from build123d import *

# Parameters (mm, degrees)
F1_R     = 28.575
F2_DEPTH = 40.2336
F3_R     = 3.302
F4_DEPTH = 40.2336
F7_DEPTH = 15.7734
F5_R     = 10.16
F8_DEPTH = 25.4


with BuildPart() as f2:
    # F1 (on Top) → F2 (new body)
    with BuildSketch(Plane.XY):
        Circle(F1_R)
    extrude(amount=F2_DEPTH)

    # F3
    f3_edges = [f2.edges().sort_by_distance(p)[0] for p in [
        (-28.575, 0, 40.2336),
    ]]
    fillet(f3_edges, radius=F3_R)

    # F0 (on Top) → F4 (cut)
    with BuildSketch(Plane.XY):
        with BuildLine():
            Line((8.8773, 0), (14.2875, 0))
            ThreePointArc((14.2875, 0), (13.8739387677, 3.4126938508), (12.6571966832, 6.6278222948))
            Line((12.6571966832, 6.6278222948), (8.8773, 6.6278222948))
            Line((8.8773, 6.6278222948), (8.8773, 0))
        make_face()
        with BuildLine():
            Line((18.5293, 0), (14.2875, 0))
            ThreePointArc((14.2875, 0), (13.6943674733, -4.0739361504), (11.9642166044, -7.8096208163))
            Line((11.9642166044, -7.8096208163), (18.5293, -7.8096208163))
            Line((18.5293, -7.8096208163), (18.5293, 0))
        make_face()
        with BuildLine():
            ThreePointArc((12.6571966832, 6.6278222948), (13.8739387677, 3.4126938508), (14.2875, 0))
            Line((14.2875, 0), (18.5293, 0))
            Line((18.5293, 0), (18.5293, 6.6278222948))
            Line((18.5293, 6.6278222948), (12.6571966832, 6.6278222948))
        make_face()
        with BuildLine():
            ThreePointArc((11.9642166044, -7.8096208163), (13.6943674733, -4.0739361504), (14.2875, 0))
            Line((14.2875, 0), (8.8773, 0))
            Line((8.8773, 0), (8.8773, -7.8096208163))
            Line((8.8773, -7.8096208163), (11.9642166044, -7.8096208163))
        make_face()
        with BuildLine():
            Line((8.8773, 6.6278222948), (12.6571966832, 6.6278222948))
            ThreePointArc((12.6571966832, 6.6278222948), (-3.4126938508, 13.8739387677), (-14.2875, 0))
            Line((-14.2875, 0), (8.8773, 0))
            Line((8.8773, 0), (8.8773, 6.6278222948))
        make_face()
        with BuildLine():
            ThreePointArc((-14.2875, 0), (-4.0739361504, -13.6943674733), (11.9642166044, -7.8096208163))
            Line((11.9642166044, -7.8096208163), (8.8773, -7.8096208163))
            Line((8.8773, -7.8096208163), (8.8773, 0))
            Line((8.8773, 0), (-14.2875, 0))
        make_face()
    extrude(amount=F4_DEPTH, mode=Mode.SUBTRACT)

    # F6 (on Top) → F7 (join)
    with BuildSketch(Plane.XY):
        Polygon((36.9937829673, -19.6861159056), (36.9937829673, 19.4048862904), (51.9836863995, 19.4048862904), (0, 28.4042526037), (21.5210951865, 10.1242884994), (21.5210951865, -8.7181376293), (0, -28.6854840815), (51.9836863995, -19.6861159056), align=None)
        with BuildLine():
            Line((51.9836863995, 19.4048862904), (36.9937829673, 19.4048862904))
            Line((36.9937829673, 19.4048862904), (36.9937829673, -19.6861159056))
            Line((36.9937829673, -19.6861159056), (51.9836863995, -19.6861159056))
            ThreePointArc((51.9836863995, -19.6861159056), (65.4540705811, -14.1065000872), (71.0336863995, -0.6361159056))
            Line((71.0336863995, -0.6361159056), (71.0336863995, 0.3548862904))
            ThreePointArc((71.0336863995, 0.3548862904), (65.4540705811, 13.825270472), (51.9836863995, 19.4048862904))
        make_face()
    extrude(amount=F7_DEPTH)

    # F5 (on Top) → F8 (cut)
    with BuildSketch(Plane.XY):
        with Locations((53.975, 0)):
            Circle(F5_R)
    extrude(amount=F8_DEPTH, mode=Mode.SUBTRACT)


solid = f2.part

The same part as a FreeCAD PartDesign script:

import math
import FreeCAD as App
import Part
import Sketcher
Q = App.Units.Quantity


def edges_at(feature, points):
    """Names of the edges that pass closest to the given points."""
    edges = feature.Shape.Edges
    near = lambda p: min(range(len(edges)), key=lambda i: edges[i].distToShape(Part.Vertex(*p))[0])
    return sorted({f"Edge{near(p) + 1}" for p in points})

doc = App.newDocument("Part")
body = doc.addObject("PartDesign::Body", "Body")

# Sketch on XY plane
sketch1 = doc.addObject("Sketcher::SketchObject", "Sketch")
body.addObject(sketch1)
sketch1.AttachmentSupport = (doc.XY_Plane, [""])
sketch1.MapMode = "FlatFace"
sketch1.addGeometry(Part.Circle(App.Vector(0, 0, 0), App.Vector(0, 0, 1), 29), False)
sketch1.addConstraint([
    Sketcher.Constraint("Coincident", 0, 3, -1, 1),
    Sketcher.Constraint("Diameter", 0, Q("2.25 in")),
])
pad1 = doc.addObject("PartDesign::Pad", "Pad")
body.addObject(pad1)
pad1.Profile = sketch1
pad1.Length = Q("1.584 in")
doc.recompute()

fillet = doc.addObject("PartDesign::Fillet", "Fillet")
body.addObject(fillet)
fillet.Base = (pad1, edges_at(pad1, [(-28.575, 0, 40.234)]))
fillet.Radius = Q("0.13 in")

# Sketch on XY plane
sketch2 = doc.addObject("Sketcher::SketchObject", "Sketch001")
body.addObject(sketch2)
sketch2.AttachmentSupport = (doc.XY_Plane, [""])
sketch2.MapMode = "FlatFace"
sketch2.addGeometry([
    Part.LineSegment(App.Vector(19, -8, 0), App.Vector(19, 7, 0)),  # 0
    Part.LineSegment(App.Vector(19, 7, 0), App.Vector(13, 7, 0)),  # 1
    Part.ArcOfCircle(Part.Circle(App.Vector(0, 0, 0), App.Vector(0, 0, 1), 14), math.radians(28), math.radians(180)),  # 2
    Part.ArcOfCircle(Part.Circle(App.Vector(0, 0, 0), App.Vector(0, 0, 1), 14), math.radians(180), math.radians(327)),  # 3
    Part.LineSegment(App.Vector(12, -8, 0), App.Vector(19, -8, 0)),  # 4
], False)
sketch2.addConstraint([
    Sketcher.Constraint("Coincident", 0, 2, 1, 1),
    Sketcher.Constraint("Coincident", 1, 2, 2, 1),
    Sketcher.Constraint("Tangent", 2, 2, 3, 1),
    Sketcher.Constraint("Coincident", 3, 2, 4, 1),
    Sketcher.Constraint("Coincident", 4, 2, 0, 1),
    Sketcher.Constraint("Vertical", 0),
    Sketcher.Constraint("Horizontal", 1),
    Sketcher.Constraint("Horizontal", 4),
    Sketcher.Constraint("Coincident", 2, 3, -1, 1),
    Sketcher.Constraint("Equal", 2, 3),
    Sketcher.Constraint("PointOnObject", 2, 2, -1),
    Sketcher.Constraint("Radius", 2, Q("0.5625 in")),
    Sketcher.Constraint("DistanceX", 2, 2, 0, 2, Q("1.292 in")),
    Sketcher.Constraint("DistanceX", 1, 2, 1, 1, Q("5.872103 mm")),
    Sketcher.Constraint("DistanceX", 4, 1, 4, 2, Q("6.565083 mm")),
])
pocket1 = doc.addObject("PartDesign::Pocket", "Pocket")
body.addObject(pocket1)
pocket1.Profile = sketch2
pocket1.Length = Q("1.584 in")
pocket1.Reversed = True

# Sketch on XY plane
sketch3 = doc.addObject("Sketcher::SketchObject", "Sketch002")
body.addObject(sketch3)
sketch3.AttachmentSupport = (doc.XY_Plane, [""])
sketch3.MapMode = "FlatFace"
sketch3.addGeometry([
    Part.LineSegment(App.Vector(52, 19.4, 0), App.Vector(0, 28.4, 0)),  # 0
    Part.LineSegment(App.Vector(0, 28.4, 0), App.Vector(21.5, 10.1, 0)),  # 1
    Part.LineSegment(App.Vector(21.5, 10.1, 0), App.Vector(21.5, -8.7, 0)),  # 2
    Part.LineSegment(App.Vector(21.5, -8.7, 0), App.Vector(0, -28.7, 0)),  # 3
    Part.LineSegment(App.Vector(0, -28.7, 0), App.Vector(52, -19.7, 0)),  # 4
    Part.ArcOfCircle(Part.Circle(App.Vector(52, -0.6, 0), App.Vector(0, 0, 1), 19.1), math.radians(-90), math.radians(0)),  # 5
    Part.LineSegment(App.Vector(71, -0.6, 0), App.Vector(71, 0.4, 0)),  # 6
    Part.ArcOfCircle(Part.Circle(App.Vector(52, 0.4, 0), App.Vector(0, 0, 1), 19.1), math.radians(0), math.radians(90)),  # 7
], False)
sketch3.addConstraint([
    Sketcher.Constraint("Coincident", 0, 2, 1, 1),
    Sketcher.Constraint("Coincident", 1, 2, 2, 1),
    Sketcher.Constraint("Coincident", 2, 2, 3, 1),
    Sketcher.Constraint("Coincident", 3, 2, 4, 1),
    Sketcher.Constraint("Coincident", 4, 2, 5, 1),
    Sketcher.Constraint("Tangent", 5, 2, 6, 1),
    Sketcher.Constraint("Tangent", 6, 2, 7, 1),
    Sketcher.Constraint("Coincident", 7, 2, 0, 1),
    Sketcher.Constraint("Vertical", 2),
    Sketcher.Constraint("Vertical", 6),
    Sketcher.Constraint("Equal", 5, 7),
    Sketcher.Constraint("PointOnObject", 0, 2, -2),
    Sketcher.Constraint("PointOnObject", 3, 2, -2),
    Sketcher.Constraint("Vertical", 7, 3, 4, 2),
    Sketcher.Constraint("Vertical", 4, 2, 7, 2),
    Sketcher.Constraint("Equal", 0, 4),
    Sketcher.Constraint("Radius", 5, Q("0.75 in")),
    Sketcher.Constraint("Distance", 3, Q("1.1558002 in")),
    Sketcher.Constraint("Distance", 1, Q("28.23676 mm")),
    Sketcher.Constraint("DistanceY", 2, 2, 2, 1, Q("18.842426 mm")),
    Sketcher.Constraint("DistanceY", 6, 1, 6, 2, Q("0.991002 mm")),
    Sketcher.Constraint("DistanceY", -1, 1, 1, 2, Q("10.124288 mm")),
    Sketcher.Constraint("DistanceY", 5, 3, 0, 2, Q("29.040369 mm")),
    Sketcher.Constraint("DistanceX", 1, 2, 7, 3, Q("30.462591 mm")),
])
pad2 = doc.addObject("PartDesign::Pad", "Pad001")
body.addObject(pad2)
pad2.Profile = sketch3
pad2.Length = Q("0.621 in")

# Sketch on XY plane
sketch4 = doc.addObject("Sketcher::SketchObject", "Sketch003")
body.addObject(sketch4)
sketch4.AttachmentSupport = (doc.XY_Plane, [""])
sketch4.MapMode = "FlatFace"
sketch4.addGeometry(Part.Circle(App.Vector(54, 0, 0), App.Vector(0, 0, 1), 10), False)
sketch4.addConstraint([
    Sketcher.Constraint("PointOnObject", 0, 3, -1),
    Sketcher.Constraint("Diameter", 0, Q("0.8 in")),
    Sketcher.Constraint("DistanceX", -1, 1, 0, 3, Q("2.125 in")),
])
pocket2 = doc.addObject("PartDesign::Pocket", "Pocket001")
body.addObject(pocket2)
pocket2.Profile = sketch4
pocket2.Length = Q("1 in")
pocket2.Reversed = True

doc.recompute()
